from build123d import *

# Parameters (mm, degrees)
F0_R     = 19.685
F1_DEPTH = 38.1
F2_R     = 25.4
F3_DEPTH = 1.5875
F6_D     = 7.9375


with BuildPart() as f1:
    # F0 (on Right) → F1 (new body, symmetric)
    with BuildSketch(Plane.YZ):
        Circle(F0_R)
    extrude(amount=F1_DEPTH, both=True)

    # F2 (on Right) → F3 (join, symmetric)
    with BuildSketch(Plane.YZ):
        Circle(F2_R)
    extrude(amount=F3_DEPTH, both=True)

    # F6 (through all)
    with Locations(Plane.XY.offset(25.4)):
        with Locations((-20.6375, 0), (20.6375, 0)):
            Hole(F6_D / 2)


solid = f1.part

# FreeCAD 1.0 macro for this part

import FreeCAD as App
import Part
import Sketcher
Q = App.Units.Quantity

doc = App.newDocument("Part")
params = doc.addObject("Spreadsheet::Sheet", "Params")
for row, (alias, value) in enumerate([
    ("sketch1_diameter", "1.55 in"),
    ("pad1_length", "3 in"),
    ("sketch2_diameter", "2 in"),
    ("pad2_length", "0.125 in"),
    ("sketch3_diameter", "0.3125 in"),
    ("hole_diameter", "0.3125 in"),
], start=1):
    params.set(f"A{row}", alias)
    params.set(f"B{row}", "=" + value)
    params.setAlias(f"B{row}", alias)

body = doc.addObject("PartDesign::Body", "Body")

# Sketch on YZ plane
sketch1 = body.newObject("Sketcher::SketchObject", "Sketch")
sketch1.AttachmentSupport = (doc.getObject("YZ_Plane"), [""])
sketch1.MapMode = "FlatFace"
sketch1.addGeometry(Part.Circle(App.Vector(0, 0, 0), App.Vector(0, 0, 1), 20), False)
sketch1.addConstraint([
    Sketcher.Constraint("Coincident", 0, 3, -1, 1),
    Sketcher.Constraint("Diameter", 0, Q("1.55 in")),
])
sketch1.setExpression("Constraints[1]", "Params.sketch1_diameter")
pad1 = body.newObject("PartDesign::Pad", "Pad")
pad1.Profile = sketch1
pad1.setExpression("Length", "Params.pad1_length")
pad1.Midplane = True

# Sketch on YZ plane
sketch2 = body.newObject("Sketcher::SketchObject", "Sketch001")
sketch2.AttachmentSupport = (doc.getObject("YZ_Plane"), [""])
sketch2.MapMode = "FlatFace"
sketch2.addGeometry(Part.Circle(App.Vector(0, 0, 0), App.Vector(0, 0, 1), 25), False)
sketch2.addConstraint([
    Sketcher.Constraint("Coincident", 0, 3, -1, 1),
    Sketcher.Constraint("Diameter", 0, Q("2 in")),
])
sketch2.setExpression("Constraints[1]", "Params.sketch2_diameter")
pad2 = body.newObject("PartDesign::Pad", "Pad001")
pad2.Profile = sketch2
pad2.setExpression("Length", "Params.pad2_length")
pad2.Midplane = True

# Sketch on XY plane
sketch3 = body.newObject("Sketcher::SketchObject", "Sketch002")
sketch3.AttachmentSupport = (doc.getObject("XY_Plane"), [""])
sketch3.MapMode = "FlatFace"
sketch3.AttachmentOffset = App.Placement(App.Vector(0, 0, 1 * 25.4), App.Rotation())
sketch3.addGeometry([
    Part.Circle(App.Vector(-20.6, 0, 0), App.Vector(0, 0, 1), 4),
    Part.Circle(App.Vector(20.6, 0, 0), App.Vector(0, 0, 1), 4),
], False)
sketch3.addConstraint([
    Sketcher.Constraint("Equal", 0, 1),
    Sketcher.Constraint("Symmetric", 0, 3, 1, 3, -1, 1),
    Sketcher.Constraint("PointOnObject", 0, 3, -1),
    Sketcher.Constraint("Diameter", 0, Q("0.3125 in")),
    Sketcher.Constraint("DistanceX", 0, 3, -1, 1, Q("0.8125 in")),
])
sketch3.setExpression("Constraints[3]", "Params.sketch3_diameter")
doc.recompute()
hole = body.newObject("PartDesign::Hole", "Hole")
hole.Profile = sketch3
hole.ThreadType = "None"
hole.setExpression("Diameter", "Params.hole_diameter")
hole.DepthType = "ThroughAll"

doc.recompute()
